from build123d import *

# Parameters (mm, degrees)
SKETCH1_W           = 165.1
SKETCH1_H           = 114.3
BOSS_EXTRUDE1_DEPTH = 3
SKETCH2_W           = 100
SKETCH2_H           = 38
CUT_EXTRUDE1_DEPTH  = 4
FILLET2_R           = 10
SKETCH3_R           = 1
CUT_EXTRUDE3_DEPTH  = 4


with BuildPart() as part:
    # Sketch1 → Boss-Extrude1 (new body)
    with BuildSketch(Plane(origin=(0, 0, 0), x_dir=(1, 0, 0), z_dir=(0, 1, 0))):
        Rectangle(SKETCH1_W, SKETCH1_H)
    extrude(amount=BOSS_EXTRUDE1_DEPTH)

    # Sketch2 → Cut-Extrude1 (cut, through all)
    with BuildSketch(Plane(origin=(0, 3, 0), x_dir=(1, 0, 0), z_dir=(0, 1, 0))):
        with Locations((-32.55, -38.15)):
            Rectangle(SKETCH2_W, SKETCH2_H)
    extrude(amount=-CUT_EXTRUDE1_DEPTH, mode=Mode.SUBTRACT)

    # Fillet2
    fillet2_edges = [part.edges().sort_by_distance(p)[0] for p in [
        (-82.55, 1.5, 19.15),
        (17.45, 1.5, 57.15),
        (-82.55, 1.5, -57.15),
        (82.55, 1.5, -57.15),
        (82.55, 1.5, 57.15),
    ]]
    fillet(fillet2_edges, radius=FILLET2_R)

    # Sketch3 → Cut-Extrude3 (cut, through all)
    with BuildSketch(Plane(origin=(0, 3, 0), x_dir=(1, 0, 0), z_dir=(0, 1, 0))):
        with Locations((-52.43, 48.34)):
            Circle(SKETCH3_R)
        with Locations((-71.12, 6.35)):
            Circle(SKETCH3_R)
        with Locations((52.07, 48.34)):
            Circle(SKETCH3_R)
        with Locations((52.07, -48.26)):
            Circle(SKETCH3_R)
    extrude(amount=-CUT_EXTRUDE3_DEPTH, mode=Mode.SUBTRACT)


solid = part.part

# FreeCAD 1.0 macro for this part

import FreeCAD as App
import Part
import Sketcher


def edges_at(feature, points):
    """Names of the edges that pass closest to the given points."""
    edges = feature.Shape.Edges
    near = lambda p: min(range(len(edges)), key=lambda i: edges[i].distToShape(Part.Vertex(*p))[0])
    return sorted({f"Edge{near(p) + 1}" for p in points})


def add_polygon(sketch, points):
    """Adds a closed chain of lines whose ends are joined by coincident constraints."""
    first, n = sketch.GeometryCount, len(points)
    for a, b in zip(points, points[1:] + points[:1]):
        sketch.addGeometry(Part.LineSegment(App.Vector(*a, 0), App.Vector(*b, 0)), False)
    for i in range(n):
        sketch.addConstraint(Sketcher.Constraint("Coincident", first + i, 2, first + (i + 1) % n, 1))

doc = App.newDocument("Part")
body = doc.addObject("PartDesign::Body", "Body")

# Sketch on XZ plane
sketch1 = doc.addObject("Sketcher::SketchObject", "Sketch")
body.addObject(sketch1)
sketch1.AttachmentSupport = (doc.XZ_Plane, [""])
sketch1.MapMode = "FlatFace"
add_polygon(sketch1, [(-83, -57), (-83, 57), (83, 57), (83, -57)])  # lines 0-3
sketch1.addConstraint([
    Sketcher.Constraint("Vertical", 0),
    Sketcher.Constraint("Horizontal", 1),
    Sketcher.Constraint("Vertical", 2),
    Sketcher.Constraint("Horizontal", 3),
    Sketcher.Constraint("Symmetric", 0, 2, 2, 2, -1, 1),
    Sketcher.Constraint("DistanceX", 1, 1, 1, 2, 165.1),
    Sketcher.Constraint("DistanceY", 0, 1, 0, 2, 114.3),
])
pad1 = doc.addObject("PartDesign::Pad", "Pad")
body.addObject(pad1)
pad1.Profile = sketch1
pad1.Length = 3
pad1.Reversed = True

# Sketch on XZ plane
sketch2 = doc.addObject("Sketcher::SketchObject", "Sketch001")
body.addObject(sketch2)
sketch2.AttachmentSupport = (doc.XZ_Plane, [""])
sketch2.MapMode = "FlatFace"
sketch2.AttachmentOffset = App.Placement(App.Vector(0, 0, -3), App.Rotation())
add_polygon(sketch2, [(-83, 19), (-83, 57), (17, 57), (17, 19)])  # lines 0-3
sketch2.addConstraint([
    Sketcher.Constraint("Vertical", 0),
    Sketcher.Constraint("Horizontal", 1),
    Sketcher.Constraint("Vertical", 2),
    Sketcher.Constraint("Horizontal", 3),
    Sketcher.Constraint("DistanceX", 1, 1, 1, 2, 100.0),
    Sketcher.Constraint("DistanceY", 0, 1, 0, 2, 38.0),
    Sketcher.Constraint("DistanceX", 0, 2, -1, 1, 82.55),
    Sketcher.Constraint("DistanceY", -1, 1, 0, 2, 57.15),
])
pocket1 = doc.addObject("PartDesign::Pocket", "Pocket")
body.addObject(pocket1)
pocket1.Profile = sketch2
pocket1.Type = "ThroughAll"
pocket1.Reversed = True
doc.recompute()

fillet = doc.addObject("PartDesign::Fillet", "Fillet")
body.addObject(fillet)
fillet.Base = (pocket1, edges_at(pocket1, [
    (-82.55, 1.5, 19.15),
    (17.45, 1.5, 57.15),
    (-82.55, 1.5, -57.15),
    (82.55, 1.5, -57.15),
    (82.55, 1.5, 57.15),
]))
fillet.Radius = 10

# Sketch on XZ plane
sketch3 = doc.addObject("Sketcher::SketchObject", "Sketch002")
body.addObject(sketch3)
sketch3.AttachmentSupport = (doc.XZ_Plane, [""])
sketch3.MapMode = "FlatFace"
sketch3.AttachmentOffset = App.Placement(App.Vector(0, 0, -3), App.Rotation())
sketch3.addGeometry([
    Part.Circle(App.Vector(-52.4, -48.3, 0), App.Vector(0, 0, 1), 1),
    Part.Circle(App.Vector(-71.1, -6.3, 0), App.Vector(0, 0, 1), 1),
    Part.Circle(App.Vector(52.1, -48.3, 0), App.Vector(0, 0, 1), 1),
    Part.Circle(App.Vector(52.1, 48.3, 0), App.Vector(0, 0, 1), 1),
], False)
sketch3.addConstraint([
    Sketcher.Constraint("Equal", 0, 1),
    Sketcher.Constraint("Equal", 1, 2),
    Sketcher.Constraint("Equal", 2, 3),
    Sketcher.Constraint("Horizontal", 0, 3, 2, 3),
    Sketcher.Constraint("Vertical", 2, 3, 3, 3),
    Sketcher.Constraint("Diameter", 0, 2.0),
    Sketcher.Constraint("DistanceX", 0, 3, 2, 3, 104.5),
    Sketcher.Constraint("DistanceY", 2, 3, 3, 3, 96.6),
    Sketcher.Constraint("DistanceX", 0, 3, -1, 1, 52.43),
    Sketcher.Constraint("DistanceY", 0, 3, -1, 1, 48.34),
    Sketcher.Constraint("DistanceX", 1, 3, -1, 1, 71.12),
    Sketcher.Constraint("DistanceY", 1, 3, -1, 1, 6.35),
])
pocket2 = doc.addObject("PartDesign::Pocket", "Pocket001")
body.addObject(pocket2)
pocket2.Profile = sketch3
pocket2.Type = "ThroughAll"
pocket2.Reversed = True

doc.recompute()
